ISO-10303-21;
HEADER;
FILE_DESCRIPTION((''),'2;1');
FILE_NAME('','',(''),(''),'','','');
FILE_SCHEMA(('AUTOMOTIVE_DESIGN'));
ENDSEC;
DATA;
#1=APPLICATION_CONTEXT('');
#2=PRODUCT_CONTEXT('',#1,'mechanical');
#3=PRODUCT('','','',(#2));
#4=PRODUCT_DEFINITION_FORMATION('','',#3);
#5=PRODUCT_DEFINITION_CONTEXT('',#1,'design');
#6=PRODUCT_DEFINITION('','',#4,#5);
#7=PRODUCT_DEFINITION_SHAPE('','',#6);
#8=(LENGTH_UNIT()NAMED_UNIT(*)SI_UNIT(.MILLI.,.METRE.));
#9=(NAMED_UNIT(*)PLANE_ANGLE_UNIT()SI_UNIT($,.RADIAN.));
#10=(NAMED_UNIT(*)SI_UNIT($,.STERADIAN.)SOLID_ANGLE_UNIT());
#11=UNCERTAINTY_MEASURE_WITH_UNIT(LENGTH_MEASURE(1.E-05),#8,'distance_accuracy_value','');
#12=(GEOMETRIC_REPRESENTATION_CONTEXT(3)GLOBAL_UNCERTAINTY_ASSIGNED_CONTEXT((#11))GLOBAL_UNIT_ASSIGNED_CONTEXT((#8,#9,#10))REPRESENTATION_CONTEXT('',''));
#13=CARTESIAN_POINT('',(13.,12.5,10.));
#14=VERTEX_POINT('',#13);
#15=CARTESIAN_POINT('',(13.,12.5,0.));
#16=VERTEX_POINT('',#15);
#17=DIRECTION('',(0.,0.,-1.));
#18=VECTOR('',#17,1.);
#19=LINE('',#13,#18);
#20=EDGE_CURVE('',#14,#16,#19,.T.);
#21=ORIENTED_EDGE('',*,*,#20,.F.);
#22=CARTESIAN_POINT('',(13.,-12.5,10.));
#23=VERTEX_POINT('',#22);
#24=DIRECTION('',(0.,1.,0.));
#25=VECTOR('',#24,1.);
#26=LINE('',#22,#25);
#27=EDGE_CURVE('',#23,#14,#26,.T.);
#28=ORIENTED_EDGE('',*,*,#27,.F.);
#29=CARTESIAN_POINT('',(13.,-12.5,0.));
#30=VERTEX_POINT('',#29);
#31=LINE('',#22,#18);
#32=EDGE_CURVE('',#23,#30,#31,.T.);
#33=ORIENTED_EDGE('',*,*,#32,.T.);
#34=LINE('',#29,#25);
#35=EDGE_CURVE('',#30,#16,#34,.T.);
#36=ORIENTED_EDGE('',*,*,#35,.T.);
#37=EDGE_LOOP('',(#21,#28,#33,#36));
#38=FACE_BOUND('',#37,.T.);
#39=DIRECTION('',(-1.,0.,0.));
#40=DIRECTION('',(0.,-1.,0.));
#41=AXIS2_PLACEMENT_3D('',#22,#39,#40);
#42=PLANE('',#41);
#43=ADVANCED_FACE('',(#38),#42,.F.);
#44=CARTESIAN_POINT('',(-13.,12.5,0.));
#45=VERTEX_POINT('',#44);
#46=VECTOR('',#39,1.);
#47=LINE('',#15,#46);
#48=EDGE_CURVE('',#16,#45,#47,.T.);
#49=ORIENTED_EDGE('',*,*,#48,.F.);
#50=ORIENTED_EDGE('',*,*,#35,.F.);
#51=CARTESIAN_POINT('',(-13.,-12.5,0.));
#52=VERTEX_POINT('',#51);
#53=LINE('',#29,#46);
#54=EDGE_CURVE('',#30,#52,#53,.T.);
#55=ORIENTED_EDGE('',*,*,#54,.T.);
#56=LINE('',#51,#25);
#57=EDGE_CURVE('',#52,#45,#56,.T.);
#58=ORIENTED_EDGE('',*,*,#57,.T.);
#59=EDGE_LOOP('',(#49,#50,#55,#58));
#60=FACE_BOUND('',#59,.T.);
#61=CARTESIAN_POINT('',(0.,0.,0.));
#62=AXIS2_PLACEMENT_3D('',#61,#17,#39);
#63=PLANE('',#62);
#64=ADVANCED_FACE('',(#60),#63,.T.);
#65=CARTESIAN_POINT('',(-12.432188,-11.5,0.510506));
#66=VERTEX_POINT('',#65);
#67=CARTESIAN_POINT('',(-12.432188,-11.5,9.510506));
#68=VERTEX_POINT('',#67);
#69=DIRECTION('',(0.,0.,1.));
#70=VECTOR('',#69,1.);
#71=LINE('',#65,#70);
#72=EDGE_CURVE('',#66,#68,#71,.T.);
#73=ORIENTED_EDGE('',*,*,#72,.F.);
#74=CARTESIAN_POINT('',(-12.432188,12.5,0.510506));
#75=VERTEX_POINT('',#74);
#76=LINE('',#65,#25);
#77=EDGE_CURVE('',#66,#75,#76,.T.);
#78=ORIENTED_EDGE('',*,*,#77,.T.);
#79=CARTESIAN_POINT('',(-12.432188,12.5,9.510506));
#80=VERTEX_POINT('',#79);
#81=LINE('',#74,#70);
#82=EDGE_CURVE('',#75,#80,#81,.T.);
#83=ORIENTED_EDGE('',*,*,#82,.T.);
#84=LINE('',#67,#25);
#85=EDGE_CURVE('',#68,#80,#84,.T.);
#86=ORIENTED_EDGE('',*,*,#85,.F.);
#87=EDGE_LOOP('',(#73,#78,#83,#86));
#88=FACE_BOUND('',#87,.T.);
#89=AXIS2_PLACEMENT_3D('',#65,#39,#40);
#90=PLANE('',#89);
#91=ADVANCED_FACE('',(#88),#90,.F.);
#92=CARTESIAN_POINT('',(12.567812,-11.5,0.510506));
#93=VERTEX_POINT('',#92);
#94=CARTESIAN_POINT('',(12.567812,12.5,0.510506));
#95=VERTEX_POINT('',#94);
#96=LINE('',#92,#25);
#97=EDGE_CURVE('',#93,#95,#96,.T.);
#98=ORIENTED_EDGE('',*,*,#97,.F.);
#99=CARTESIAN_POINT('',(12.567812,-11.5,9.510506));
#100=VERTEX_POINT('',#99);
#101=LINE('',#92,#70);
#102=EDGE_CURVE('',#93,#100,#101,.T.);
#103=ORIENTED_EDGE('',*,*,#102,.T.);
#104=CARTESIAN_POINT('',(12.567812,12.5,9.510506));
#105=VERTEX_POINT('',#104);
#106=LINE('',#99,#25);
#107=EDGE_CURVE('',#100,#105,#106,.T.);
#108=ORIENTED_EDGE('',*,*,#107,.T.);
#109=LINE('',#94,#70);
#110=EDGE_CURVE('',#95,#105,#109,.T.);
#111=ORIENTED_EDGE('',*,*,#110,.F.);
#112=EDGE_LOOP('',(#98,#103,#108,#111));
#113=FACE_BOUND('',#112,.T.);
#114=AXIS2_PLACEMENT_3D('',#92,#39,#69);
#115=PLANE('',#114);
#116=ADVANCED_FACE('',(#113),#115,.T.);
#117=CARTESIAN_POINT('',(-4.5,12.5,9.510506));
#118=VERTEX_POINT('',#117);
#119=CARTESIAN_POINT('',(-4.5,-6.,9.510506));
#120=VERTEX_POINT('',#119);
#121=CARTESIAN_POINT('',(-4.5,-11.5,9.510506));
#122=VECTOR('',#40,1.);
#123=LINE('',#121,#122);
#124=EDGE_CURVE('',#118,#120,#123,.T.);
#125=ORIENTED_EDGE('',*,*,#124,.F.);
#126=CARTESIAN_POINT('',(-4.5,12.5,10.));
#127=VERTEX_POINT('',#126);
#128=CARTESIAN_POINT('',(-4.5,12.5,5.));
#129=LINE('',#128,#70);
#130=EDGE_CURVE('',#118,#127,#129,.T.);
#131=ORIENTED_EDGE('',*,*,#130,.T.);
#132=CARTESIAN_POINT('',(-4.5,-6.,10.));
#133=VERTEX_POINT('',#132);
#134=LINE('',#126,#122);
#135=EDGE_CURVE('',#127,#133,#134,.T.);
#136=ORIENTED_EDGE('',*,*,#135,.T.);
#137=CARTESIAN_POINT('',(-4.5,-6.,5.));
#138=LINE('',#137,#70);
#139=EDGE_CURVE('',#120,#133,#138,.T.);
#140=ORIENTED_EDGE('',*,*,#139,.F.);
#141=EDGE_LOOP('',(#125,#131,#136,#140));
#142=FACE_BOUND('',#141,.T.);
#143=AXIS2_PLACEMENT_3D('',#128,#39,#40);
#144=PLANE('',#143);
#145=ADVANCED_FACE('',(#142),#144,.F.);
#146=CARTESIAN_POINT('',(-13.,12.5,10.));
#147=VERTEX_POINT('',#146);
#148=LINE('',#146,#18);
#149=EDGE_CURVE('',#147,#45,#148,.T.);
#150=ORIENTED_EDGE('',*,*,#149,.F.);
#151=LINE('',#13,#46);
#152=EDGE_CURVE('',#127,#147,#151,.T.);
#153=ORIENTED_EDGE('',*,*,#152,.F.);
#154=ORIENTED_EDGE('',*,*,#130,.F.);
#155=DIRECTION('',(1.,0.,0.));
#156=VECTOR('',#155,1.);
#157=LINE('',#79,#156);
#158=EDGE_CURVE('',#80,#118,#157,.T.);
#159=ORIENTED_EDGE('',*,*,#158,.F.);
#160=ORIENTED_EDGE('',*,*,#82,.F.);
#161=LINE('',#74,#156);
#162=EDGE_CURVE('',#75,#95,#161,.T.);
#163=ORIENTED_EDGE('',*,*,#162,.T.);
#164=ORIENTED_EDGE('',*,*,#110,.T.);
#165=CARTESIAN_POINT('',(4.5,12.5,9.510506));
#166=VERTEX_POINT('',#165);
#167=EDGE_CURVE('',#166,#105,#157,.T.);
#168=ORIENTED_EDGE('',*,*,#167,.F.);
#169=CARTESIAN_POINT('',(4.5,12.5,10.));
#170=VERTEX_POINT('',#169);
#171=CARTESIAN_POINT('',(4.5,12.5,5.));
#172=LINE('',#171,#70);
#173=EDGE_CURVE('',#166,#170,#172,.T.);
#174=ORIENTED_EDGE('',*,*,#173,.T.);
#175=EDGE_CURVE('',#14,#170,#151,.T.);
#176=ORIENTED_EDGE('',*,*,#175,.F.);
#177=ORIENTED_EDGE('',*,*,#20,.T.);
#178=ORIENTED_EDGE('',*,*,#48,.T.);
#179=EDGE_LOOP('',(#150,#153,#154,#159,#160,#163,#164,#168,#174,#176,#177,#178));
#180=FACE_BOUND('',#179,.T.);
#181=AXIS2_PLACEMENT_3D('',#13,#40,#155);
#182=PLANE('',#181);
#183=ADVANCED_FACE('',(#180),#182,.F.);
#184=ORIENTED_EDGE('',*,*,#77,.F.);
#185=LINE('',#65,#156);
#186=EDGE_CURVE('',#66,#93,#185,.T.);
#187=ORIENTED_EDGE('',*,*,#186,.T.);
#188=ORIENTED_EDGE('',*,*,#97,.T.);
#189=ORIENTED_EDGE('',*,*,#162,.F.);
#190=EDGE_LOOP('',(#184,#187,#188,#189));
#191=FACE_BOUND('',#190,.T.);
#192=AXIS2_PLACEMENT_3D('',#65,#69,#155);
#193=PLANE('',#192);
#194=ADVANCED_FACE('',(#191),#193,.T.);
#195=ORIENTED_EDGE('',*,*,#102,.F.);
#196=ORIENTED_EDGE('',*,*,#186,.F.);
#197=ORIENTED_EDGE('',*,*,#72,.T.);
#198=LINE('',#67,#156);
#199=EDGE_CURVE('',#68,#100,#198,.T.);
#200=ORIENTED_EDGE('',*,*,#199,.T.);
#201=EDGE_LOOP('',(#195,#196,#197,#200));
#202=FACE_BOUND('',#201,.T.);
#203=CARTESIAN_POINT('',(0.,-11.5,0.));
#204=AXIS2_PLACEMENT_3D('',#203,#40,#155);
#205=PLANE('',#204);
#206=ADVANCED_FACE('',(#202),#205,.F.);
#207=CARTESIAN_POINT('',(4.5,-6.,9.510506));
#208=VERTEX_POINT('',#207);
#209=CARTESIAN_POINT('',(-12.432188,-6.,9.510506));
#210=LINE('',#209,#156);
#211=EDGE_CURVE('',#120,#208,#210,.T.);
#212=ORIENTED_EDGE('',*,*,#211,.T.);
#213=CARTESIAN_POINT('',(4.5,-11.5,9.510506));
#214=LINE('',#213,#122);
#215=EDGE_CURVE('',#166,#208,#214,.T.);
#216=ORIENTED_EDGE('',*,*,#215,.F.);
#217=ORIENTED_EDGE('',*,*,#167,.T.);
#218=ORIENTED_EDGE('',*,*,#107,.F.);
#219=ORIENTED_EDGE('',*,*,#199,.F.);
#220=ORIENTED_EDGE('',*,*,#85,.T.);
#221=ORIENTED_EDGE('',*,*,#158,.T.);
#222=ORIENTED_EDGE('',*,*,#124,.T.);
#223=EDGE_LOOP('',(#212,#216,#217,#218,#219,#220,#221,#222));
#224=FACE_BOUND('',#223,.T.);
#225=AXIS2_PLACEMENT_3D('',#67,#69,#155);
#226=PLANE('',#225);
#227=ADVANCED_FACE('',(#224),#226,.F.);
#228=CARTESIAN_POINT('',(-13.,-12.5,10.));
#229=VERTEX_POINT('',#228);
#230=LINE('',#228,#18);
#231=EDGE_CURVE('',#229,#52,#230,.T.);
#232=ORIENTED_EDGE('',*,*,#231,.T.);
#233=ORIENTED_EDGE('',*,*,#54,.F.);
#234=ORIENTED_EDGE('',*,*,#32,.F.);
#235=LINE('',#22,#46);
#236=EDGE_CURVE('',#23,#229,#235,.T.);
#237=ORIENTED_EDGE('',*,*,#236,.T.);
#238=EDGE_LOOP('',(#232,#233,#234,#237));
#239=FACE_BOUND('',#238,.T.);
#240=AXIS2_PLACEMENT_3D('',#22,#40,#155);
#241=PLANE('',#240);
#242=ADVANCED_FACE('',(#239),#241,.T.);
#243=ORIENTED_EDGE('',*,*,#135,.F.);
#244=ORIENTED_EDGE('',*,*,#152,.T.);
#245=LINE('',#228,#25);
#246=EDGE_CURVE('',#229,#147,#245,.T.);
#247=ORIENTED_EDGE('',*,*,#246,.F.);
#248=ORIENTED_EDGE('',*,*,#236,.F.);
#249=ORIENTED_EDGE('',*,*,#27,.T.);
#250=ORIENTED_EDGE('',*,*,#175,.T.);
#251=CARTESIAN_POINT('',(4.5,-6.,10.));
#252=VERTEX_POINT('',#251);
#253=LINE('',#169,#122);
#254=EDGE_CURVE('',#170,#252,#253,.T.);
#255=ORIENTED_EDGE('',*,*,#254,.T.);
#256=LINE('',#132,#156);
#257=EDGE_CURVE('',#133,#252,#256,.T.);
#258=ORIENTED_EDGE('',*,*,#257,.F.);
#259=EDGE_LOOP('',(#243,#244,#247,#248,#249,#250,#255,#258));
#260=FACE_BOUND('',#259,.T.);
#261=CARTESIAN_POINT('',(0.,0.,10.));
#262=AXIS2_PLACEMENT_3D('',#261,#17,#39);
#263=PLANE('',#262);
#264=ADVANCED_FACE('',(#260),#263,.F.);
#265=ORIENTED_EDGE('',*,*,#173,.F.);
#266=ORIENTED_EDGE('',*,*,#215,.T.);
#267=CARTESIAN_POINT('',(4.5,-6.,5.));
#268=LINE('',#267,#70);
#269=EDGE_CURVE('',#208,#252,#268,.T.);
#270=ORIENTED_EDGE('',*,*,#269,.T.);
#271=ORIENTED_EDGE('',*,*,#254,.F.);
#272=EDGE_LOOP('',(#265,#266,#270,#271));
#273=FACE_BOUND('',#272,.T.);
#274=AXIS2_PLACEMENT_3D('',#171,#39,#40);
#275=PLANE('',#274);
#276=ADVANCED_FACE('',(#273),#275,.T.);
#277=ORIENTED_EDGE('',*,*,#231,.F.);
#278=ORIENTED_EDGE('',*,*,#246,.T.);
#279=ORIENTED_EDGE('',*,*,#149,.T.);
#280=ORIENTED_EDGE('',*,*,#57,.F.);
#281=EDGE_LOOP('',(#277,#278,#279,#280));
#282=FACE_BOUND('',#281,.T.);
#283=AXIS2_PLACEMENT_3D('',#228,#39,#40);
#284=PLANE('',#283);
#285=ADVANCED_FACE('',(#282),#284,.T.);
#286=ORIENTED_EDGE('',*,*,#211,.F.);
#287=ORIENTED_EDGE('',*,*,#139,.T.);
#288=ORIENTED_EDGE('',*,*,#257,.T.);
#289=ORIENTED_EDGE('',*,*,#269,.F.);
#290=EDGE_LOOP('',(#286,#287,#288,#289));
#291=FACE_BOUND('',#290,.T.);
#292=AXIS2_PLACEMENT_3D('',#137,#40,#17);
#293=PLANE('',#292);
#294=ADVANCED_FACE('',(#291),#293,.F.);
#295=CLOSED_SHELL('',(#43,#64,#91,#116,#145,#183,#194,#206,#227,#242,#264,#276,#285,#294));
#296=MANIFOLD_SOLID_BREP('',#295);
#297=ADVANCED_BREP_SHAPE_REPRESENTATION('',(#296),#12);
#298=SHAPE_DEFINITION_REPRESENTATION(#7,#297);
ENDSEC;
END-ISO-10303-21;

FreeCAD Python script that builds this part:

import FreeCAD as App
import Part
import Sketcher
Q = App.Units.Quantity


def add_polygon(sketch, points):
    """Adds a closed chain of lines whose ends are joined by coincident constraints."""
    first, n = sketch.GeometryCount, len(points)
    for a, b in zip(points, points[1:] + points[:1]):
        sketch.addGeometry(Part.LineSegment(App.Vector(*a, 0), App.Vector(*b, 0)), False)
    for i in range(n):
        sketch.addConstraint(Sketcher.Constraint("Coincident", first + i, 2, first + (i + 1) % n, 1))

doc = App.newDocument("Part")
body = doc.addObject("PartDesign::Body", "Body")

sketch1 = body.newObject("Sketcher::SketchObject", "Sketch")
sketch1.AttachmentSupport = (doc.getObject("XY_Plane"), [""])
sketch1.MapMode = "FlatFace"
add_polygon(sketch1, [(-13, 12.5), (-13, -12.5), (13, -12.5), (13, 12.5)])
sketch1.addConstraint(Sketcher.Constraint("Vertical", 0))
sketch1.addConstraint(Sketcher.Constraint("Horizontal", 1))
sketch1.addConstraint(Sketcher.Constraint("Vertical", 2))
sketch1.addConstraint(Sketcher.Constraint("Horizontal", 3))
sketch1.addConstraint(Sketcher.Constraint("Symmetric", 0, 2, 2, 2, -1, 1))
sketch1.addConstraint(Sketcher.Constraint("DistanceX", 1, 1, 1, 2, Q("26 mm")))
sketch1.addConstraint(Sketcher.Constraint("DistanceY", 0, 2, 0, 1, Q("25 mm")))
pad1 = body.newObject("PartDesign::Pad", "Pad")
pad1.Profile = sketch1
pad1.Length = 10

sketch2 = body.newObject("Sketcher::SketchObject", "Sketch001")
sketch2.AttachmentSupport = (doc.getObject("XZ_Plane"), [""])
sketch2.MapMode = "FlatFace"
sketch2.AttachmentOffset = App.Placement(App.Vector(0, 0, -12.5), App.Rotation())
add_polygon(sketch2, [(-12.432188, 0.510506), (-12.432188, 9.510506), (12.567812, 9.510506), (12.567812, 0.510506)])
sketch2.addConstraint(Sketcher.Constraint("Vertical", 0))
sketch2.addConstraint(Sketcher.Constraint("Horizontal", 1))
sketch2.addConstraint(Sketcher.Constraint("Vertical", 2))
sketch2.addConstraint(Sketcher.Constraint("Horizontal", 3))
sketch2.addConstraint(Sketcher.Constraint("DistanceX", 1, 1, 1, 2, Q("25 mm")))
sketch2.addConstraint(Sketcher.Constraint("DistanceY", 0, 1, 0, 2, Q("9 mm")))
sketch2.addConstraint(Sketcher.Constraint("DistanceX", 0, 2, -1, 1, Q("12.432188 mm")))
sketch2.addConstraint(Sketcher.Constraint("DistanceY", -1, 1, 0, 2, Q("9.510506 mm")))
pocket1 = body.newObject("PartDesign::Pocket", "Pocket")
pocket1.Profile = sketch2
pocket1.Length = 24
pocket1.Reversed = True

sketch3 = body.newObject("Sketcher::SketchObject", "Sketch002")
sketch3.AttachmentSupport = (doc.getObject("XY_Plane"), [""])
sketch3.MapMode = "FlatFace"
sketch3.AttachmentOffset = App.Placement(App.Vector(0, 0, 10), App.Rotation())
add_polygon(sketch3, [(-4.5, 12.5), (-4.5, -6), (4.5, -6), (4.5, 12.5)])
sketch3.addConstraint(Sketcher.Constraint("Vertical", 0))
sketch3.addConstraint(Sketcher.Constraint("Horizontal", 1))
sketch3.addConstraint(Sketcher.Constraint("Vertical", 2))
sketch3.addConstraint(Sketcher.Constraint("Horizontal", 3))
sketch3.addConstraint(Sketcher.Constraint("DistanceX", 1, 1, 1, 2, Q("9 mm")))
sketch3.addConstraint(Sketcher.Constraint("DistanceY", 0, 2, 0, 1, Q("18.5 mm")))
sketch3.addConstraint(Sketcher.Constraint("DistanceY", 0, 2, -1, 1, Q("6 mm")))
sketch3.addConstraint(Sketcher.Constraint("DistanceX", 0, 2, -1, 1, Q("4.5 mm")))
pocket2 = body.newObject("PartDesign::Pocket", "Pocket001")
pocket2.Profile = sketch3
pocket2.Length = 5

doc.recompute()
